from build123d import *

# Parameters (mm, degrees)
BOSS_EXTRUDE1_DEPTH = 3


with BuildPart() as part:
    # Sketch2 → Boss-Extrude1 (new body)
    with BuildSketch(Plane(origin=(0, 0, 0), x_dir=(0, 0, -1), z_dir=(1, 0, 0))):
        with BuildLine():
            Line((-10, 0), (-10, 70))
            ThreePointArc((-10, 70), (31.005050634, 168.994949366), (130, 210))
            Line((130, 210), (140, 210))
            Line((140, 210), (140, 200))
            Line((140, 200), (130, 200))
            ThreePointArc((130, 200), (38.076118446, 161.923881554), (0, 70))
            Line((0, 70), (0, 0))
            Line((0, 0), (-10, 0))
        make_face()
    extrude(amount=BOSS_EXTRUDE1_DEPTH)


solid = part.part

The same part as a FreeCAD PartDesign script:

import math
import FreeCAD as App
import Part
import Sketcher
from FreeCAD import Vector
Q = App.Units.Quantity

doc = App.newDocument("Part")
body = doc.addObject("PartDesign::Body", "Body")

# Sketch on YZ plane
sketch1 = doc.addObject("Sketcher::SketchObject", "Sketch")
body.addObject(sketch1)
sketch1.AttachmentSupport = (doc.YZ_Plane, [""])
sketch1.MapMode = "FlatFace"
sketch1.addGeometry(Part.LineSegment(Vector(70, 10, 0), Vector(0, 10, 0)), False)
sketch1.addGeometry(Part.LineSegment(Vector(0, 10, 0), Vector(0, 0, 0)), False)
sketch1.addGeometry(Part.LineSegment(Vector(0, 0, 0), Vector(70, 0, 0)), False)
sketch1.addGeometry(Part.ArcOfCircle(Part.Circle(Vector(70, -130, 0), Vector(0, 0, 1), 130), math.radians(0), math.radians(90)), False)
sketch1.addGeometry(Part.LineSegment(Vector(200, -130, 0), Vector(200, -140, 0)), False)
sketch1.addGeometry(Part.LineSegment(Vector(200, -140, 0), Vector(210, -140, 0)), False)
sketch1.addGeometry(Part.LineSegment(Vector(210, -140, 0), Vector(210, -130, 0)), False)
sketch1.addGeometry(Part.ArcOfCircle(Part.Circle(Vector(70, -130, 0), Vector(0, 0, 1), 140), math.radians(0), math.radians(90)), False)
sketch1.addConstraint(Sketcher.Constraint("Coincident", 0, 2, 1, 1))
sketch1.addConstraint(Sketcher.Constraint("Coincident", 1, 2, 2, 1))
sketch1.addConstraint(Sketcher.Constraint("Tangent", 2, 2, 3, 2))
sketch1.addConstraint(Sketcher.Constraint("Tangent", 3, 1, 4, 1))
sketch1.addConstraint(Sketcher.Constraint("Coincident", 4, 2, 5, 1))
sketch1.addConstraint(Sketcher.Constraint("Coincident", 5, 2, 6, 1))
sketch1.addConstraint(Sketcher.Constraint("Tangent", 6, 2, 7, 1))
sketch1.addConstraint(Sketcher.Constraint("Tangent", 7, 2, 0, 1))
sketch1.addConstraint(Sketcher.Constraint("Horizontal", 0))
sketch1.addConstraint(Sketcher.Constraint("Vertical", 1))
sketch1.addConstraint(Sketcher.Constraint("Horizontal", 2))
sketch1.addConstraint(Sketcher.Constraint("Vertical", 4))
sketch1.addConstraint(Sketcher.Constraint("Horizontal", 5))
sketch1.addConstraint(Sketcher.Constraint("Vertical", 6))
sketch1.addConstraint(Sketcher.Constraint("Coincident", 1, 2, -1, 1))
sketch1.addConstraint(Sketcher.Constraint("Coincident", 7, 3, 3, 3))
sketch1.addConstraint(Sketcher.Constraint("Equal", 1, 4))
sketch1.addConstraint(Sketcher.Constraint("Radius", 3, Q("130 mm")))
sketch1.addConstraint(Sketcher.Constraint("Radius", 7, Q("140 mm")))
sketch1.addConstraint(Sketcher.Constraint("DistanceX", 0, 2, 0, 1, Q("70 mm")))
pad1 = doc.addObject("PartDesign::Pad", "Pad")
body.addObject(pad1)
pad1.Profile = sketch1
pad1.Length = 3

doc.recompute()
